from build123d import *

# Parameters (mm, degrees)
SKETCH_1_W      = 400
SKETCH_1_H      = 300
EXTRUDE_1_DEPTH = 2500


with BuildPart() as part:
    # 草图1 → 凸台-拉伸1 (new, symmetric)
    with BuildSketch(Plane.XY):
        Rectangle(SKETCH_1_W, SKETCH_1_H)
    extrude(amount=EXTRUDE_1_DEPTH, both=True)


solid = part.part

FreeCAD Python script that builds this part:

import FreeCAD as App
import Part
import Sketcher
from FreeCAD import Vector

doc = App.newDocument("Part")
body = doc.addObject("PartDesign::Body", "Body")

sketch1 = body.newObject("Sketcher::SketchObject", "Sketch")
sketch1.AttachmentSupport = (doc.getObject("XY_Plane"), [""])
sketch1.MapMode = "FlatFace"
sketch1.addGeometry(Part.LineSegment(Vector(-200, 150, 0), Vector(-200, -150, 0)), False)
sketch1.addGeometry(Part.LineSegment(Vector(-200, -150, 0), Vector(200, -150, 0)), False)
sketch1.addGeometry(Part.LineSegment(Vector(200, -150, 0), Vector(200, 150, 0)), False)
sketch1.addGeometry(Part.LineSegment(Vector(200, 150, 0), Vector(-200, 150, 0)), False)
sketch1.addConstraint(Sketcher.Constraint("Coincident", 0, 2, 1, 1))
sketch1.addConstraint(Sketcher.Constraint("Coincident", 1, 2, 2, 1))
sketch1.addConstraint(Sketcher.Constraint("Coincident", 2, 2, 3, 1))
sketch1.addConstraint(Sketcher.Constraint("Coincident", 3, 2, 0, 1))
sketch1.addConstraint(Sketcher.Constraint("Vertical", 0))
sketch1.addConstraint(Sketcher.Constraint("Horizontal", 1))
sketch1.addConstraint(Sketcher.Constraint("Vertical", 2))
sketch1.addConstraint(Sketcher.Constraint("Horizontal", 3))
sketch1.addConstraint(Sketcher.Constraint("Symmetric", 0, 2, 2, 2, -1, 1))
sketch1.addConstraint(Sketcher.Constraint("DistanceX", 1, 1, 1, 2, 400.0))
sketch1.addConstraint(Sketcher.Constraint("DistanceY", 0, 2, 0, 1, 300.0))
pad1 = body.newObject("PartDesign::Pad", "Pad")
pad1.Profile = sketch1
pad1.Length = 5000
pad1.Midplane = True

doc.recompute()
